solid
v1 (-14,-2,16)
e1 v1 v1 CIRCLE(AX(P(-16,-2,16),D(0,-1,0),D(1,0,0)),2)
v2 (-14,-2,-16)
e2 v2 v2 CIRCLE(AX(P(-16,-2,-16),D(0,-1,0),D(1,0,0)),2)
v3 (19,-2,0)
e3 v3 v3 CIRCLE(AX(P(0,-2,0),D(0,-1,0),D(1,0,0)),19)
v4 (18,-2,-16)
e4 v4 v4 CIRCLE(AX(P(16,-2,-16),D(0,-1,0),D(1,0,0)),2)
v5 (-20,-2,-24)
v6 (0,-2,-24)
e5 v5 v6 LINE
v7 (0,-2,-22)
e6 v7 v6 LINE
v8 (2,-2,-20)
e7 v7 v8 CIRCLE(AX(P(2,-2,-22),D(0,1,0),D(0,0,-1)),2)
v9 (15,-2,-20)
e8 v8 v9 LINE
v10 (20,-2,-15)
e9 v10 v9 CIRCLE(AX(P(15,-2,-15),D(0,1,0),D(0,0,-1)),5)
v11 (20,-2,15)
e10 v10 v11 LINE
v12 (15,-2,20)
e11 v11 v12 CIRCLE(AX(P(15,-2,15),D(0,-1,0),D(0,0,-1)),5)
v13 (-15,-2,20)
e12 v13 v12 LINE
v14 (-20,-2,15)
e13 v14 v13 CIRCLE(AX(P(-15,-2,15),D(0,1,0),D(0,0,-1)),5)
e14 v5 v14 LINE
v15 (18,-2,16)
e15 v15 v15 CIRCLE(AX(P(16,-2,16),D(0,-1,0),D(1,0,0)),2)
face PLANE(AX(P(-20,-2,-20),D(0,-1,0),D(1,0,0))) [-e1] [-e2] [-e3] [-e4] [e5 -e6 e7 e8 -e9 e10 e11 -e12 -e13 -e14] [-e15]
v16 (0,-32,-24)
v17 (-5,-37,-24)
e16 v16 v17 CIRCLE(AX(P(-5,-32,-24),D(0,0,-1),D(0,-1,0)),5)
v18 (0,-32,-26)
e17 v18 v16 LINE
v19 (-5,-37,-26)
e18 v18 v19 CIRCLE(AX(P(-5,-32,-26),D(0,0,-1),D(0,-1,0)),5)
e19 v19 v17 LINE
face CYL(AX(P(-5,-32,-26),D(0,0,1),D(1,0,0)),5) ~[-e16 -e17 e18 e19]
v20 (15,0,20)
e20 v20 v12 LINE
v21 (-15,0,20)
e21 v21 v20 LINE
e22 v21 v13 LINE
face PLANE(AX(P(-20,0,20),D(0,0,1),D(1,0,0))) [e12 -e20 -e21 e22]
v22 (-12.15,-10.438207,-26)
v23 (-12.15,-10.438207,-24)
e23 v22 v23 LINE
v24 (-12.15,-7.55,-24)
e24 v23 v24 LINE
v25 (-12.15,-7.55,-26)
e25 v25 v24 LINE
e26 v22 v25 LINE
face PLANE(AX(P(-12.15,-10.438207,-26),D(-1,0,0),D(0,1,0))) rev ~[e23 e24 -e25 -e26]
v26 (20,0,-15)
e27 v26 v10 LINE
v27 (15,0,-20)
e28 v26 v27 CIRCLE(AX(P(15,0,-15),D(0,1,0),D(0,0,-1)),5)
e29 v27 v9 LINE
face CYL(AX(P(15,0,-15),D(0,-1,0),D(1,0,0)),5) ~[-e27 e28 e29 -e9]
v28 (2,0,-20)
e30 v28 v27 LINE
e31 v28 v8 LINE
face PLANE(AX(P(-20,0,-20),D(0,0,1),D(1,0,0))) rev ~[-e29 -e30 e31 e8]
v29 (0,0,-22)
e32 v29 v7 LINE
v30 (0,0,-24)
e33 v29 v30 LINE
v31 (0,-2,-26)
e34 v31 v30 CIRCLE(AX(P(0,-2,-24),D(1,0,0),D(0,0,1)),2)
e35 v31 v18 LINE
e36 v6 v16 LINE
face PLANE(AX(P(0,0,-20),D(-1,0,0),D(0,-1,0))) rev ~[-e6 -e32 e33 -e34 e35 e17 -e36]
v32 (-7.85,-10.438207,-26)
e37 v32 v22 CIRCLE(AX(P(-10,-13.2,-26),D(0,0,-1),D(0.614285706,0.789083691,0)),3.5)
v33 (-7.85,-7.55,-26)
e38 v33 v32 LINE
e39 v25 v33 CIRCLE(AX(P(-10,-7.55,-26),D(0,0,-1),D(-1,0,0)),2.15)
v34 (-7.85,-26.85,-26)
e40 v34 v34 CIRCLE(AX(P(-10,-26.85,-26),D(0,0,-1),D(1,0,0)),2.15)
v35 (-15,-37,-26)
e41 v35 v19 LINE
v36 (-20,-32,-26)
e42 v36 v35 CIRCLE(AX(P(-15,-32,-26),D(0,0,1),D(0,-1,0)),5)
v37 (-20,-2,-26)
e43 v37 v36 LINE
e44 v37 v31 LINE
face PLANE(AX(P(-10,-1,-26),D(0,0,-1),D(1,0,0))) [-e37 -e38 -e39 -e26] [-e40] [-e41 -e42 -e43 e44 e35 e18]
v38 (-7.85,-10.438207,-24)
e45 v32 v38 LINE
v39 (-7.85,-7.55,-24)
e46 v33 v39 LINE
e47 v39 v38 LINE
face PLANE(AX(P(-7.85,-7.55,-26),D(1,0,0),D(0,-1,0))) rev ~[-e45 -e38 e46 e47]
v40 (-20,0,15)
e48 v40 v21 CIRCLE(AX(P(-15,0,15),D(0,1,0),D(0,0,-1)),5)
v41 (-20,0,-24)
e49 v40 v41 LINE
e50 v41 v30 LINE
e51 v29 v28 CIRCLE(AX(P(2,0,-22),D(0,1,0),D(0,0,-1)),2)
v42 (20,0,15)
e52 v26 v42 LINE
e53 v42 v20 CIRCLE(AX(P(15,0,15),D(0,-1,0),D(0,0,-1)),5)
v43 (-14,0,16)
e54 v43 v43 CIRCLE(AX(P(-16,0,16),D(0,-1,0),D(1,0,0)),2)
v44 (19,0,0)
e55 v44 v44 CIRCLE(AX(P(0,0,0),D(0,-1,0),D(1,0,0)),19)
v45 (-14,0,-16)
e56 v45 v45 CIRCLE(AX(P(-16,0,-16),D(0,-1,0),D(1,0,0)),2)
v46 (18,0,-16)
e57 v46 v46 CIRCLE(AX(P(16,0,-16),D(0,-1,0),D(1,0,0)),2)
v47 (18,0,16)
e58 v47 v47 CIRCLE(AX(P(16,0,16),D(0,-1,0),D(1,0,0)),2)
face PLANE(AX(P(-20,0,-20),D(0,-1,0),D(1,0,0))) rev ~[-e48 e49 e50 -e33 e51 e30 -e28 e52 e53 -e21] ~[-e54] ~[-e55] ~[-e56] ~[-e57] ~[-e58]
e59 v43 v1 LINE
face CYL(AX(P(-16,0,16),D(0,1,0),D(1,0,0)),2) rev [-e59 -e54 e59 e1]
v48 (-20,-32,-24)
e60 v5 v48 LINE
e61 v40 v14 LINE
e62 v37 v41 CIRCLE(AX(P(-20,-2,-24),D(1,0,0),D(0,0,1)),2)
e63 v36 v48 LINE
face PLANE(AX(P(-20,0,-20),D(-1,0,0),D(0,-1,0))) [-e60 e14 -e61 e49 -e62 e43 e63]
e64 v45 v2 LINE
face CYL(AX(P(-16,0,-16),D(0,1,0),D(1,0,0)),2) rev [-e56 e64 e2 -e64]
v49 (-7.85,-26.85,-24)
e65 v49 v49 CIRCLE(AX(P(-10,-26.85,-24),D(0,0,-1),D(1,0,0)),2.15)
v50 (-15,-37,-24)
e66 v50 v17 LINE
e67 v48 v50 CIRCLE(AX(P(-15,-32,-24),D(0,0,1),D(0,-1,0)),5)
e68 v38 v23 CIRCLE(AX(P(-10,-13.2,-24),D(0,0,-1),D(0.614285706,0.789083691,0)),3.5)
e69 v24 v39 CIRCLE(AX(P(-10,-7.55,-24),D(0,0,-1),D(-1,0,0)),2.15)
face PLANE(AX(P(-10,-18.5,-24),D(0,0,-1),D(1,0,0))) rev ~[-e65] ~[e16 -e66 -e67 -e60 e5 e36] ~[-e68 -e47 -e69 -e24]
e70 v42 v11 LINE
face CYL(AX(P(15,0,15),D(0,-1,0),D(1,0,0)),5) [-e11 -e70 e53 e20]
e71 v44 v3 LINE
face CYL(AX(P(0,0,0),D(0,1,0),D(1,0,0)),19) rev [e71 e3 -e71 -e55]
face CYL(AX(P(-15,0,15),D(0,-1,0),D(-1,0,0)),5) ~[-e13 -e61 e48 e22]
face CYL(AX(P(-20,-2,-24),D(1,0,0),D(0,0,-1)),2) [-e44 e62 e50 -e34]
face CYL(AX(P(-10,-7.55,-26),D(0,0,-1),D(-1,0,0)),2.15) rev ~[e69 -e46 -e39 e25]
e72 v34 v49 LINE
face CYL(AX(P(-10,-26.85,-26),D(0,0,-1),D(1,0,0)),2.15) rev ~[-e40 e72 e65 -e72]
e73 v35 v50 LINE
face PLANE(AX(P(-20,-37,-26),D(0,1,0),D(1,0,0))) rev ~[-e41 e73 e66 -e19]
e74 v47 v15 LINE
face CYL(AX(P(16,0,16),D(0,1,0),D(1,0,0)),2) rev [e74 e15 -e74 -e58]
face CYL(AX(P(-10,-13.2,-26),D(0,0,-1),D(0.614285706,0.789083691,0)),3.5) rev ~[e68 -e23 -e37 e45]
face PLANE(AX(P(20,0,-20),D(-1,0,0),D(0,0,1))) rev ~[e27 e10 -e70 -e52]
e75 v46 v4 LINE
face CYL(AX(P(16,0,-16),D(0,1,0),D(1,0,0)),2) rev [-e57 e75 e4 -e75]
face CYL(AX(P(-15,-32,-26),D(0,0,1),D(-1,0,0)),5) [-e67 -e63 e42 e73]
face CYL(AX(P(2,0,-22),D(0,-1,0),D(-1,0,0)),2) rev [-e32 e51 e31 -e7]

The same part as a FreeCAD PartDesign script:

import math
import FreeCAD as App
import Part
import Sketcher
from FreeCAD import Vector
Q = App.Units.Quantity


def edges_at(feature, points):
    """Names of the edges that pass closest to the given points."""
    edges = feature.Shape.Edges
    near = lambda p: min(range(len(edges)), key=lambda i: edges[i].distToShape(Part.Vertex(*p))[0])
    return sorted({f"Edge{near(p) + 1}" for p in points})

doc = App.newDocument("Part")
body = doc.addObject("PartDesign::Body", "Body")

sketch1 = doc.addObject("Sketcher::SketchObject", "Sketch")
body.addObject(sketch1)
sketch1.AttachmentSupport = (doc.XZ_Plane, [""])
sketch1.MapMode = "FlatFace"
sketch1.addGeometry(Part.LineSegment(Vector(-20, 20, 0), Vector(-20, -20, 0)), False)
sketch1.addGeometry(Part.LineSegment(Vector(-20, -20, 0), Vector(20, -20, 0)), False)
sketch1.addGeometry(Part.LineSegment(Vector(20, -20, 0), Vector(20, 20, 0)), False)
sketch1.addGeometry(Part.LineSegment(Vector(20, 20, 0), Vector(-20, 20, 0)), False)
sketch1.addGeometry(Part.Circle(Vector(-16, -16, 0), Vector(0, 0, 1), 2), False)
sketch1.addGeometry(Part.Circle(Vector(16, -16, 0), Vector(0, 0, 1), 2), False)
sketch1.addGeometry(Part.Circle(Vector(-16, 16, 0), Vector(0, 0, 1), 2), False)
sketch1.addGeometry(Part.Circle(Vector(0, 0, 0), Vector(0, 0, 1), 19), False)
sketch1.addGeometry(Part.Circle(Vector(16, 16, 0), Vector(0, 0, 1), 2), False)
sketch1.addConstraint(Sketcher.Constraint("Coincident", 0, 2, 1, 1))
sketch1.addConstraint(Sketcher.Constraint("Coincident", 1, 2, 2, 1))
sketch1.addConstraint(Sketcher.Constraint("Coincident", 2, 2, 3, 1))
sketch1.addConstraint(Sketcher.Constraint("Coincident", 3, 2, 0, 1))
sketch1.addConstraint(Sketcher.Constraint("Vertical", 0))
sketch1.addConstraint(Sketcher.Constraint("Horizontal", 1))
sketch1.addConstraint(Sketcher.Constraint("Vertical", 2))
sketch1.addConstraint(Sketcher.Constraint("Horizontal", 3))
sketch1.addConstraint(Sketcher.Constraint("Coincident", 7, 3, -1, 1))
sketch1.addConstraint(Sketcher.Constraint("Equal", 4, 5))
sketch1.addConstraint(Sketcher.Constraint("Equal", 5, 6))
sketch1.addConstraint(Sketcher.Constraint("Equal", 6, 8))
sketch1.addConstraint(Sketcher.Constraint("Symmetric", 5, 3, 6, 3, -1, 1))
sketch1.addConstraint(Sketcher.Constraint("Symmetric", 4, 3, 8, 3, -1, 1))
sketch1.addConstraint(Sketcher.Constraint("Symmetric", 0, 2, 2, 2, -1, 1))
sketch1.addConstraint(Sketcher.Constraint("Symmetric", 4, 3, 5, 3, -2))
sketch1.addConstraint(Sketcher.Constraint("Equal", 3, 0))
sketch1.addConstraint(Sketcher.Constraint("Diameter", 4, Q("4 mm")))
sketch1.addConstraint(Sketcher.Constraint("Diameter", 7, Q("38 mm")))
sketch1.addConstraint(Sketcher.Constraint("DistanceX", 1, 1, 1, 2, Q("40 mm")))
sketch1.addConstraint(Sketcher.Constraint("DistanceX", 4, 3, -1, 1, Q("16 mm")))
sketch1.addConstraint(Sketcher.Constraint("DistanceY", 4, 3, -1, 1, Q("16 mm")))
pad1 = doc.addObject("PartDesign::Pad", "Pad")
body.addObject(pad1)
pad1.Profile = sketch1
pad1.Length = 2

sketch2 = doc.addObject("Sketcher::SketchObject", "Sketch001")
body.addObject(sketch2)
sketch2.AttachmentSupport = (doc.XY_Plane, [""])
sketch2.MapMode = "FlatFace"
sketch2.AttachmentOffset = App.Placement(Vector(0, 0, -20), App.Rotation())
sketch2.addGeometry(Part.LineSegment(Vector(-20, -2, 0), Vector(-20, 0, 0)), False)
sketch2.addGeometry(Part.LineSegment(Vector(-20, 0, 0), Vector(0, 0, 0)), False)
sketch2.addGeometry(Part.LineSegment(Vector(0, 0, 0), Vector(0, -2, 0)), False)
sketch2.addGeometry(Part.LineSegment(Vector(0, -2, 0), Vector(-20, -2, 0)), False)
sketch2.addConstraint(Sketcher.Constraint("Coincident", 0, 2, 1, 1))
sketch2.addConstraint(Sketcher.Constraint("Coincident", 1, 2, 2, 1))
sketch2.addConstraint(Sketcher.Constraint("Coincident", 2, 2, 3, 1))
sketch2.addConstraint(Sketcher.Constraint("Coincident", 3, 2, 0, 1))
sketch2.addConstraint(Sketcher.Constraint("Vertical", 0))
sketch2.addConstraint(Sketcher.Constraint("Horizontal", 1))
sketch2.addConstraint(Sketcher.Constraint("Vertical", 2))
sketch2.addConstraint(Sketcher.Constraint("Horizontal", 3))
sketch2.addConstraint(Sketcher.Constraint("Coincident", 1, 2, -1, 1))
sketch2.addConstraint(Sketcher.Constraint("DistanceX", 1, 1, 1, 2, Q("20 mm")))
sketch2.addConstraint(Sketcher.Constraint("DistanceY", 0, 1, 0, 2, Q("2 mm")))
pad2 = doc.addObject("PartDesign::Pad", "Pad001")
body.addObject(pad2)
pad2.Profile = sketch2
pad2.Length = 6
pad2.Reversed = True

sketch3 = doc.addObject("Sketcher::SketchObject", "Sketch002")
body.addObject(sketch3)
sketch3.AttachmentSupport = (doc.XY_Plane, [""])
sketch3.MapMode = "FlatFace"
sketch3.AttachmentOffset = App.Placement(Vector(0, 0, -26), App.Rotation())
sketch3.addGeometry(Part.LineSegment(Vector(-20, -37, 0), Vector(-20, 0, 0)), False)
sketch3.addGeometry(Part.LineSegment(Vector(-20, 0, 0), Vector(0, 0, 0)), False)
sketch3.addGeometry(Part.LineSegment(Vector(0, 0, 0), Vector(0, -37, 0)), False)
sketch3.addGeometry(Part.LineSegment(Vector(0, -37, 0), Vector(-20, -37, 0)), False)
sketch3.addConstraint(Sketcher.Constraint("Coincident", 0, 2, 1, 1))
sketch3.addConstraint(Sketcher.Constraint("Coincident", 1, 2, 2, 1))
sketch3.addConstraint(Sketcher.Constraint("Coincident", 2, 2, 3, 1))
sketch3.addConstraint(Sketcher.Constraint("Coincident", 3, 2, 0, 1))
sketch3.addConstraint(Sketcher.Constraint("Vertical", 0))
sketch3.addConstraint(Sketcher.Constraint("Horizontal", 1))
sketch3.addConstraint(Sketcher.Constraint("Vertical", 2))
sketch3.addConstraint(Sketcher.Constraint("Horizontal", 3))
sketch3.addConstraint(Sketcher.Constraint("Coincident", 1, 2, -1, 1))
sketch3.addConstraint(Sketcher.Constraint("DistanceX", 1, 1, 1, 2, Q("20 mm")))
sketch3.addConstraint(Sketcher.Constraint("DistanceY", 0, 1, 0, 2, Q("37 mm")))
pad3 = doc.addObject("PartDesign::Pad", "Pad002")
body.addObject(pad3)
pad3.Profile = sketch3
pad3.Length = 2
doc.recompute()

fillet = doc.addObject("PartDesign::Fillet", "Fillet")
body.addObject(fillet)
fillet.Base = (pad3, edges_at(pad3, [
    (20, -1, -20),
    (20, -1, 20),
    (-20, -1, 20),
    (-20, -37, -25),
    (0, -37, -25),
]))
fillet.Radius = 5

sketch4 = doc.addObject("Sketcher::SketchObject", "Sketch003")
body.addObject(sketch4)
sketch4.AttachmentSupport = (doc.XY_Plane, [""])
sketch4.MapMode = "FlatFace"
sketch4.AttachmentOffset = App.Placement(Vector(0, 0, -26), App.Rotation())
sketch4.addGeometry(Part.Circle(Vector(-10, -26.9, 0), Vector(0, 0, 1), 2.1), False)
sketch4.addGeometry(Part.LineSegment(Vector(-12.2, -10.4, 0), Vector(-12.2, -7.5, 0)), False)
sketch4.addGeometry(Part.ArcOfCircle(Part.Circle(Vector(-10, -7.5, 0), Vector(0, 0, 1), 2.1), math.radians(0), math.radians(180)), False)
sketch4.addGeometry(Part.LineSegment(Vector(-7.8, -7.5, 0), Vector(-7.8, -10.4, 0)), False)
sketch4.addGeometry(Part.ArcOfCircle(Part.Circle(Vector(-10, -13.2, 0), Vector(0, 0, 1), 3.5), math.radians(128), math.radians(412)), False)
sketch4.addConstraint(Sketcher.Constraint("Tangent", 1, 2, 2, 2))
sketch4.addConstraint(Sketcher.Constraint("Tangent", 2, 1, 3, 1))
sketch4.addConstraint(Sketcher.Constraint("Coincident", 3, 2, 4, 2))
sketch4.addConstraint(Sketcher.Constraint("Coincident", 4, 1, 1, 1))
sketch4.addConstraint(Sketcher.Constraint("Vertical", 1))
sketch4.addConstraint(Sketcher.Constraint("Vertical", 3))
sketch4.addConstraint(Sketcher.Constraint("Equal", 0, 2))
sketch4.addConstraint(Sketcher.Constraint("Horizontal", 3, 2, 4, 1))
sketch4.addConstraint(Sketcher.Constraint("Vertical", 0, 3, 2, 3))
sketch4.addConstraint(Sketcher.Constraint("Diameter", 0, Q("4.3 mm")))
sketch4.addConstraint(Sketcher.Constraint("Radius", 4, Q("3.5 mm")))
sketch4.addConstraint(Sketcher.Constraint("DistanceX", 0, 3, -1, 1, Q("10 mm")))
sketch4.addConstraint(Sketcher.Constraint("DistanceY", 4, 3, -1, 1, Q("13.2 mm")))
sketch4.addConstraint(Sketcher.Constraint("DistanceY", 0, 3, 2, 3, Q("19.3 mm")))
sketch4.addConstraint(Sketcher.Constraint("DistanceY", 0, 3, -1, 1, Q("26.85 mm")))
pocket1 = doc.addObject("PartDesign::Pocket", "Pocket")
body.addObject(pocket1)
pocket1.Profile = sketch4
pocket1.Length = 3
pocket1.Reversed = True
doc.recompute()

fillet2 = doc.addObject("PartDesign::Fillet", "Fillet001")
body.addObject(fillet2)
fillet2.Base = (pocket1, edges_at(pocket1, [(0, -1, -20), (-10, 0, -26)]))
fillet2.Radius = 2

doc.recompute()
